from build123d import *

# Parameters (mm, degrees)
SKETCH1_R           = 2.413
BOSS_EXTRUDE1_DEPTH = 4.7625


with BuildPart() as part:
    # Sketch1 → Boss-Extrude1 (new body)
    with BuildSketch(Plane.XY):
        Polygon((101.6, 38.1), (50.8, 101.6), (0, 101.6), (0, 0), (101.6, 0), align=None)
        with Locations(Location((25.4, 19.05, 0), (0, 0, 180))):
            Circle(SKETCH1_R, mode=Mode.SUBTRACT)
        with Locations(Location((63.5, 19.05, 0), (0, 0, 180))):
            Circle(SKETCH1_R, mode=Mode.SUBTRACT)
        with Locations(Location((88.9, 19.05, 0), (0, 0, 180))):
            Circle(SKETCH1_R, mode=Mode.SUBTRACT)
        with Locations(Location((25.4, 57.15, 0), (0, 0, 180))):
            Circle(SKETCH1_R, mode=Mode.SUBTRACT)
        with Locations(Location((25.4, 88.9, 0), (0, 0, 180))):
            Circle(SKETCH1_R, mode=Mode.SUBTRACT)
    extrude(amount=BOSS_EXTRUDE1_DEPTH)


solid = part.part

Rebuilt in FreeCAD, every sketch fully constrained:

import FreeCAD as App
import Part
import Sketcher
from FreeCAD import Vector
Q = App.Units.Quantity

doc = App.newDocument("Part")
params = doc.addObject("Spreadsheet::Sheet", "Params")
for row, (alias, value) in enumerate([
    ("sketch1_diameter", "0.19 in"),
    ("sketch1_width", "2 in"),
    ("sketch1_width2", "4 in"),
    ("sketch1_height", "1.5 in"),
    ("pad1_length", "0.1875 in"),
], start=1):
    params.set(f"A{row}", alias)
    params.set(f"B{row}", "=" + value)
    params.setAlias(f"B{row}", alias)

body = doc.addObject("PartDesign::Body", "Body")

sketch1 = doc.addObject("Sketcher::SketchObject", "Sketch")
body.addObject(sketch1)
sketch1.AttachmentSupport = (doc.XY_Plane, [""])
sketch1.MapMode = "FlatFace"
sketch1.addGeometry([
    Part.LineSegment(Vector(101.6, 38.1, 0), Vector(50.8, 101.6, 0)),
    Part.LineSegment(Vector(50.8, 101.6, 0), Vector(0, 101.6, 0)),
    Part.LineSegment(Vector(0, 101.6, 0), Vector(0, 0, 0)),
    Part.LineSegment(Vector(0, 0, 0), Vector(101.6, 0, 0)),
    Part.LineSegment(Vector(101.6, 0, 0), Vector(101.6, 38.1, 0)),
    Part.Circle(Vector(25.4, 19.1, 0), Vector(0, 0, 1), 2.4),
    Part.Circle(Vector(63.5, 19.1, 0), Vector(0, 0, 1), 2.4),
    Part.Circle(Vector(88.9, 19.1, 0), Vector(0, 0, 1), 2.4),
    Part.Circle(Vector(25.4, 57.1, 0), Vector(0, 0, 1), 2.4),
    Part.Circle(Vector(25.4, 88.9, 0), Vector(0, 0, 1), 2.4),
], False)
sketch1.addConstraint([
    Sketcher.Constraint("Coincident", 0, 2, 1, 1),
    Sketcher.Constraint("Coincident", 1, 2, 2, 1),
    Sketcher.Constraint("Coincident", 2, 2, 3, 1),
    Sketcher.Constraint("Coincident", 3, 2, 4, 1),
    Sketcher.Constraint("Coincident", 4, 2, 0, 1),
    Sketcher.Constraint("Horizontal", 1),
    Sketcher.Constraint("Vertical", 2),
    Sketcher.Constraint("Horizontal", 3),
    Sketcher.Constraint("Vertical", 4),
    Sketcher.Constraint("Coincident", 2, 2, -1, 1),
    Sketcher.Constraint("Equal", 5, 6),
    Sketcher.Constraint("Equal", 6, 7),
    Sketcher.Constraint("Equal", 7, 8),
    Sketcher.Constraint("Equal", 8, 9),
    Sketcher.Constraint("Horizontal", 5, 3, 6, 3),
    Sketcher.Constraint("Horizontal", 6, 3, 7, 3),
    Sketcher.Constraint("Vertical", 5, 3, 8, 3),
    Sketcher.Constraint("Vertical", 8, 3, 9, 3),
    Sketcher.Constraint("Equal", 3, 2),
    Sketcher.Constraint("Diameter", 5, Q("0.19 in")),
    Sketcher.Constraint("DistanceX", 1, 2, 1, 1, Q("2 in")),
    Sketcher.Constraint("DistanceX", 3, 1, 3, 2, Q("4 in")),
    Sketcher.Constraint("DistanceY", 4, 1, 4, 2, Q("1.5 in")),
    Sketcher.Constraint("DistanceX", -1, 1, 5, 3, Q("1 in")),
    Sketcher.Constraint("DistanceX", 6, 3, 7, 3, Q("1 in")),
    Sketcher.Constraint("DistanceX", -1, 1, 6, 3, Q("2.5 in")),
    Sketcher.Constraint("DistanceY", -1, 1, 9, 3, Q("3.5 in")),
    Sketcher.Constraint("DistanceY", 5, 3, 8, 3, Q("1.5 in")),
    Sketcher.Constraint("DistanceY", -1, 1, 5, 3, Q("0.75 in")),
])
sketch1.setExpression("Constraints[19]", "Params.sketch1_diameter")
sketch1.setExpression("Constraints[20]", "Params.sketch1_width")
sketch1.setExpression("Constraints[21]", "Params.sketch1_width2")
sketch1.setExpression("Constraints[22]", "Params.sketch1_height")
pad1 = doc.addObject("PartDesign::Pad", "Pad")
body.addObject(pad1)
pad1.Profile = sketch1
pad1.setExpression("Length", "Params.pad1_length")

doc.recompute()
